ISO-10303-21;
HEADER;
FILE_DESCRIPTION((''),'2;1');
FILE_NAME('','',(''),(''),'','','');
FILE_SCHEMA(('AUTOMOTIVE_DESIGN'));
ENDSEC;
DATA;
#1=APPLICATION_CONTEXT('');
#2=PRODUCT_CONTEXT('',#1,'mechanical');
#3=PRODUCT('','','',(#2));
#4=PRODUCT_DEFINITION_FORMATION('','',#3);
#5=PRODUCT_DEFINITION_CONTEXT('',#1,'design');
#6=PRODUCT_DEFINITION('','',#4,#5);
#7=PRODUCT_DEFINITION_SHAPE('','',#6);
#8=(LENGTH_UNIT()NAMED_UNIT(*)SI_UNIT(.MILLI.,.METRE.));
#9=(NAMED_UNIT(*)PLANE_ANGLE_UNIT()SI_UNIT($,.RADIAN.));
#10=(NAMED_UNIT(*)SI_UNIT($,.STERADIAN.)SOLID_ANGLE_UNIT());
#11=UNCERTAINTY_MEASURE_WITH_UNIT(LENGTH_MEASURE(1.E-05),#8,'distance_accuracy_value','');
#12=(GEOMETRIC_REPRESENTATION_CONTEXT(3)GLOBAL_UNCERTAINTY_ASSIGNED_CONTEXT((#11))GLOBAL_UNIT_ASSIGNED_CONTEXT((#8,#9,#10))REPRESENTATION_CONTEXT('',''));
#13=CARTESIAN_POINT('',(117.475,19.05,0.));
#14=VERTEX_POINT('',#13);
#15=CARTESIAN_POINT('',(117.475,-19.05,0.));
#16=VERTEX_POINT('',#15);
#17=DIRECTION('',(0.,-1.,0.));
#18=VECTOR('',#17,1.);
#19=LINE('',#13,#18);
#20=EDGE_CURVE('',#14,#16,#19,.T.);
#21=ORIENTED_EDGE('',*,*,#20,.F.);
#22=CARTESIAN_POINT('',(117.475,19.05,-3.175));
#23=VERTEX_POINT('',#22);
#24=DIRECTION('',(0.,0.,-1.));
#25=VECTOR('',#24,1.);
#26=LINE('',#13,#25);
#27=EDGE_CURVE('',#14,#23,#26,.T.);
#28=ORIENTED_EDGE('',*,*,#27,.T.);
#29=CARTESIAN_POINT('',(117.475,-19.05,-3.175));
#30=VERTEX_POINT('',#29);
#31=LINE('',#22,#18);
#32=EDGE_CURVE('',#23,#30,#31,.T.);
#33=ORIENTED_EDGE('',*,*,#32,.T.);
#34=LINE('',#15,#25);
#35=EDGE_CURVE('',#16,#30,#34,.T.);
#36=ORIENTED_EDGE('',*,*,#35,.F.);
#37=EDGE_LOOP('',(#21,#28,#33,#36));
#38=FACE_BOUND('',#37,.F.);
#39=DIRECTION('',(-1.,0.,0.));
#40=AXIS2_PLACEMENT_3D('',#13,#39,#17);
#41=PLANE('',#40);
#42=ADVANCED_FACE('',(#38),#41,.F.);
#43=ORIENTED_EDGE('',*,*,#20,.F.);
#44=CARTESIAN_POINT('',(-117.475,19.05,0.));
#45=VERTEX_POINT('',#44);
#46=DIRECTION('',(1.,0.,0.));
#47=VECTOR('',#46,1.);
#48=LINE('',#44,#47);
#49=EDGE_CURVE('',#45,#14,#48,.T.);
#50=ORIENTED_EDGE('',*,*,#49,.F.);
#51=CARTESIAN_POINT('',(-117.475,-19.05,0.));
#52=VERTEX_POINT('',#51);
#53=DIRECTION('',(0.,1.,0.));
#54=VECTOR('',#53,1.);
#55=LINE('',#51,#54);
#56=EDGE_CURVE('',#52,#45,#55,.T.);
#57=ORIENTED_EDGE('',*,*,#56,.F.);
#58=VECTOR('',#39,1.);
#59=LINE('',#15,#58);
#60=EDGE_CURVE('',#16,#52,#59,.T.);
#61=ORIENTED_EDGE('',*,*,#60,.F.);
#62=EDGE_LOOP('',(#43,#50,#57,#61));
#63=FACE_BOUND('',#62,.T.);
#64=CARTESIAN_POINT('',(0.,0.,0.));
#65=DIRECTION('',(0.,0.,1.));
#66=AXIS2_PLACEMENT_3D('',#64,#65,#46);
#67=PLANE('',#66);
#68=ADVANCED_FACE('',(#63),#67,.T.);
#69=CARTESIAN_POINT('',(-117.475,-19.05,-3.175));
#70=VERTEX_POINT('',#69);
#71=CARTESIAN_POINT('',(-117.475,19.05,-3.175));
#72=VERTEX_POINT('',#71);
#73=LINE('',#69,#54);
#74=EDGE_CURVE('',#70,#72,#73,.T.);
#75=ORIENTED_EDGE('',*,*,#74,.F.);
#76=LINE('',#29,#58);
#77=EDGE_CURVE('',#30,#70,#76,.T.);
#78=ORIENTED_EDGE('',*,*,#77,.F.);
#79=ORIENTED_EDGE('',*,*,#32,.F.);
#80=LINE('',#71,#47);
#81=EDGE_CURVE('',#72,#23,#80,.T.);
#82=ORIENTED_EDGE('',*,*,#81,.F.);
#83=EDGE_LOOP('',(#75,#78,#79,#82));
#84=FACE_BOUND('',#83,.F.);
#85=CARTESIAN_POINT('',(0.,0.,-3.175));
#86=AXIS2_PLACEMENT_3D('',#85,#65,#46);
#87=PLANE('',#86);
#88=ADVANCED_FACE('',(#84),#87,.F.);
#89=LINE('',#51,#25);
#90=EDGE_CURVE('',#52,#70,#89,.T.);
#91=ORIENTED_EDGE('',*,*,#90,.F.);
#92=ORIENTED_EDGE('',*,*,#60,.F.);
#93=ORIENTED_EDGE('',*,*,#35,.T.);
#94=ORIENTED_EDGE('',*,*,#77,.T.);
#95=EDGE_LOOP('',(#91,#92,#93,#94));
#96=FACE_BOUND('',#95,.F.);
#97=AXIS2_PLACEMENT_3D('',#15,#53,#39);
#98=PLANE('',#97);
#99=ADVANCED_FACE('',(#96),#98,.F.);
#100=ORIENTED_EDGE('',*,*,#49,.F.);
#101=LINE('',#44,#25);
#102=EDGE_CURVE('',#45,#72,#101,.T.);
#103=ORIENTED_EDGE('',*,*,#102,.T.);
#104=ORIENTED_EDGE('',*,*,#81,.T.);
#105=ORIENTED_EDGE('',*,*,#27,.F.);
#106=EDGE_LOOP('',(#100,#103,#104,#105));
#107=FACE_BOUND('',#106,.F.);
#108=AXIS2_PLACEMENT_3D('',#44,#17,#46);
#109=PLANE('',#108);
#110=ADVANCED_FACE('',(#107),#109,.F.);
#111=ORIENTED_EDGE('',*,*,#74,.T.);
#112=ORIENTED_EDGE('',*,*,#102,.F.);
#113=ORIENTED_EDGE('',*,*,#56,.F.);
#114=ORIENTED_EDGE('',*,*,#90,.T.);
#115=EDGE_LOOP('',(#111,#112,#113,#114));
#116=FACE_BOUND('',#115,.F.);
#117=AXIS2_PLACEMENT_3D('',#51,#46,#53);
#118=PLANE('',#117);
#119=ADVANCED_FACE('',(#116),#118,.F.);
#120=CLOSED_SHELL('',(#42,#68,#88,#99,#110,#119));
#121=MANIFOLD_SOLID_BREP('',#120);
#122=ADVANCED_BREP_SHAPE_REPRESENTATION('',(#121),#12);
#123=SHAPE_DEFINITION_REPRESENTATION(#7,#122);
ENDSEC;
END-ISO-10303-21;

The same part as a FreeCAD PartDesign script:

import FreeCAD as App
import Part
import Sketcher

V = App.Vector
Q = App.Units.Quantity


def add_polygon(sketch, points):
    """Adds a closed chain of lines whose ends are joined by coincident constraints."""
    first, n = sketch.GeometryCount, len(points)
    for a, b in zip(points, points[1:] + points[:1]):
        sketch.addGeometry(Part.LineSegment(App.Vector(*a, 0), App.Vector(*b, 0)), False)
    for i in range(n):
        sketch.addConstraint(Sketcher.Constraint("Coincident", first + i, 2, first + (i + 1) % n, 1))

doc = App.newDocument("Part")
body = doc.addObject("PartDesign::Body", "Body")

# Sketch on XY plane
sketch1 = body.newObject("Sketcher::SketchObject", "Sketch")
sketch1.AttachmentSupport = (doc.getObject("XY_Plane"), [""])
sketch1.MapMode = "FlatFace"
add_polygon(sketch1, [(117, 19), (-117, 19), (-117, -19), (117, -19)])  # lines 0-3
sketch1.addConstraint(Sketcher.Constraint("Horizontal", 0))
sketch1.addConstraint(Sketcher.Constraint("Vertical", 1))
sketch1.addConstraint(Sketcher.Constraint("Horizontal", 2))
sketch1.addConstraint(Sketcher.Constraint("Vertical", 3))
sketch1.addConstraint(Sketcher.Constraint("Symmetric", 0, 2, 2, 2, -1, 1))
sketch1.addConstraint(Sketcher.Constraint("DistanceY", 1, 2, 1, 1, Q("1.5 in")))
sketch1.addConstraint(Sketcher.Constraint("DistanceX", 0, 2, 0, 1, Q("9.25 in")))
pad1 = body.newObject("PartDesign::Pad", "Pad")
pad1.Profile = sketch1
pad1.Length = Q("0.125 in")
pad1.Reversed = True

doc.recompute()
